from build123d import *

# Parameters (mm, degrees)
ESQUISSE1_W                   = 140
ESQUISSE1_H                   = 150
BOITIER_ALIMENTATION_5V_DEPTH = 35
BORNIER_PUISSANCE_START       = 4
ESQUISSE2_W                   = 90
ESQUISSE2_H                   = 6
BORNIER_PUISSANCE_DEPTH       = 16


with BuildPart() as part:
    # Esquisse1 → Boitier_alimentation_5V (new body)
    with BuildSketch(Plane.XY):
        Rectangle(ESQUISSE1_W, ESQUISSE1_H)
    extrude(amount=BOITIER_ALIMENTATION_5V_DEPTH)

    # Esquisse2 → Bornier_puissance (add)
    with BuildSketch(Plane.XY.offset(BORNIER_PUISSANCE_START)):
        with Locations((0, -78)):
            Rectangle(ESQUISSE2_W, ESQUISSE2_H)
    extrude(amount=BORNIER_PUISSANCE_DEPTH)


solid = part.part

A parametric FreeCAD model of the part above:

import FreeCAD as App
import Part
import Sketcher


def add_polygon(sketch, points):
    """Adds a closed chain of lines whose ends are joined by coincident constraints."""
    first, n = sketch.GeometryCount, len(points)
    for a, b in zip(points, points[1:] + points[:1]):
        sketch.addGeometry(Part.LineSegment(App.Vector(*a, 0), App.Vector(*b, 0)), False)
    for i in range(n):
        sketch.addConstraint(Sketcher.Constraint("Coincident", first + i, 2, first + (i + 1) % n, 1))

doc = App.newDocument("Part")
params = doc.addObject("Spreadsheet::Sheet", "Params")
for row, (alias, value) in enumerate([
    ("sketch1_width", "140 mm"),
    ("sketch1_height", "150 mm"),
    ("pad1_length", "35 mm"),
    ("sketch2_width", "90 mm"),
    ("sketch2_height", "6 mm"),
    ("pad2_length", "16 mm"),
], start=1):
    params.set(f"A{row}", alias)
    params.set(f"B{row}", "=" + value)
    params.setAlias(f"B{row}", alias)

body = doc.addObject("PartDesign::Body", "Body")

# Sketch on XY plane
sketch1 = body.newObject("Sketcher::SketchObject", "Sketch")
sketch1.AttachmentSupport = (doc.getObject("XY_Plane"), [""])
sketch1.MapMode = "FlatFace"
add_polygon(sketch1, [(-70, 75), (-70, -75), (70, -75), (70, 75)])  # lines 0-3
sketch1.addConstraint(Sketcher.Constraint("Vertical", 0))
sketch1.addConstraint(Sketcher.Constraint("Horizontal", 1))
sketch1.addConstraint(Sketcher.Constraint("Vertical", 2))
sketch1.addConstraint(Sketcher.Constraint("Horizontal", 3))
sketch1.addConstraint(Sketcher.Constraint("Symmetric", 0, 2, 2, 2, -1, 1))
sketch1.addConstraint(Sketcher.Constraint("DistanceX", 1, 1, 1, 2, 140.0))
sketch1.addConstraint(Sketcher.Constraint("DistanceY", 0, 2, 0, 1, 150.0))
sketch1.setExpression("Constraints[9]", "Params.sketch1_width")
sketch1.setExpression("Constraints[10]", "Params.sketch1_height")
pad1 = body.newObject("PartDesign::Pad", "Pad")
pad1.Profile = sketch1
pad1.setExpression("Length", "Params.pad1_length")

# Sketch on XY plane
sketch2 = body.newObject("Sketcher::SketchObject", "Sketch001")
sketch2.AttachmentSupport = (doc.getObject("XY_Plane"), [""])
sketch2.MapMode = "FlatFace"
sketch2.AttachmentOffset = App.Placement(App.Vector(0, 0, 4), App.Rotation())
add_polygon(sketch2, [(-45, -75), (-45, -81), (45, -81), (45, -75)])  # lines 0-3
sketch2.addConstraint(Sketcher.Constraint("Vertical", 0))
sketch2.addConstraint(Sketcher.Constraint("Horizontal", 1))
sketch2.addConstraint(Sketcher.Constraint("Vertical", 2))
sketch2.addConstraint(Sketcher.Constraint("Horizontal", 3))
sketch2.addConstraint(Sketcher.Constraint("DistanceX", 1, 1, 1, 2, 90.0))
sketch2.addConstraint(Sketcher.Constraint("DistanceY", 0, 2, 0, 1, 6.0))
sketch2.addConstraint(Sketcher.Constraint("DistanceX", 0, 2, -1, 1, 45.0))
sketch2.addConstraint(Sketcher.Constraint("DistanceY", 0, 2, -1, 1, 81.0))
sketch2.setExpression("Constraints[8]", "Params.sketch2_width")
sketch2.setExpression("Constraints[9]", "Params.sketch2_height")
pad2 = body.newObject("PartDesign::Pad", "Pad001")
pad2.Profile = sketch2
pad2.setExpression("Length", "Params.pad2_length")

doc.recompute()
